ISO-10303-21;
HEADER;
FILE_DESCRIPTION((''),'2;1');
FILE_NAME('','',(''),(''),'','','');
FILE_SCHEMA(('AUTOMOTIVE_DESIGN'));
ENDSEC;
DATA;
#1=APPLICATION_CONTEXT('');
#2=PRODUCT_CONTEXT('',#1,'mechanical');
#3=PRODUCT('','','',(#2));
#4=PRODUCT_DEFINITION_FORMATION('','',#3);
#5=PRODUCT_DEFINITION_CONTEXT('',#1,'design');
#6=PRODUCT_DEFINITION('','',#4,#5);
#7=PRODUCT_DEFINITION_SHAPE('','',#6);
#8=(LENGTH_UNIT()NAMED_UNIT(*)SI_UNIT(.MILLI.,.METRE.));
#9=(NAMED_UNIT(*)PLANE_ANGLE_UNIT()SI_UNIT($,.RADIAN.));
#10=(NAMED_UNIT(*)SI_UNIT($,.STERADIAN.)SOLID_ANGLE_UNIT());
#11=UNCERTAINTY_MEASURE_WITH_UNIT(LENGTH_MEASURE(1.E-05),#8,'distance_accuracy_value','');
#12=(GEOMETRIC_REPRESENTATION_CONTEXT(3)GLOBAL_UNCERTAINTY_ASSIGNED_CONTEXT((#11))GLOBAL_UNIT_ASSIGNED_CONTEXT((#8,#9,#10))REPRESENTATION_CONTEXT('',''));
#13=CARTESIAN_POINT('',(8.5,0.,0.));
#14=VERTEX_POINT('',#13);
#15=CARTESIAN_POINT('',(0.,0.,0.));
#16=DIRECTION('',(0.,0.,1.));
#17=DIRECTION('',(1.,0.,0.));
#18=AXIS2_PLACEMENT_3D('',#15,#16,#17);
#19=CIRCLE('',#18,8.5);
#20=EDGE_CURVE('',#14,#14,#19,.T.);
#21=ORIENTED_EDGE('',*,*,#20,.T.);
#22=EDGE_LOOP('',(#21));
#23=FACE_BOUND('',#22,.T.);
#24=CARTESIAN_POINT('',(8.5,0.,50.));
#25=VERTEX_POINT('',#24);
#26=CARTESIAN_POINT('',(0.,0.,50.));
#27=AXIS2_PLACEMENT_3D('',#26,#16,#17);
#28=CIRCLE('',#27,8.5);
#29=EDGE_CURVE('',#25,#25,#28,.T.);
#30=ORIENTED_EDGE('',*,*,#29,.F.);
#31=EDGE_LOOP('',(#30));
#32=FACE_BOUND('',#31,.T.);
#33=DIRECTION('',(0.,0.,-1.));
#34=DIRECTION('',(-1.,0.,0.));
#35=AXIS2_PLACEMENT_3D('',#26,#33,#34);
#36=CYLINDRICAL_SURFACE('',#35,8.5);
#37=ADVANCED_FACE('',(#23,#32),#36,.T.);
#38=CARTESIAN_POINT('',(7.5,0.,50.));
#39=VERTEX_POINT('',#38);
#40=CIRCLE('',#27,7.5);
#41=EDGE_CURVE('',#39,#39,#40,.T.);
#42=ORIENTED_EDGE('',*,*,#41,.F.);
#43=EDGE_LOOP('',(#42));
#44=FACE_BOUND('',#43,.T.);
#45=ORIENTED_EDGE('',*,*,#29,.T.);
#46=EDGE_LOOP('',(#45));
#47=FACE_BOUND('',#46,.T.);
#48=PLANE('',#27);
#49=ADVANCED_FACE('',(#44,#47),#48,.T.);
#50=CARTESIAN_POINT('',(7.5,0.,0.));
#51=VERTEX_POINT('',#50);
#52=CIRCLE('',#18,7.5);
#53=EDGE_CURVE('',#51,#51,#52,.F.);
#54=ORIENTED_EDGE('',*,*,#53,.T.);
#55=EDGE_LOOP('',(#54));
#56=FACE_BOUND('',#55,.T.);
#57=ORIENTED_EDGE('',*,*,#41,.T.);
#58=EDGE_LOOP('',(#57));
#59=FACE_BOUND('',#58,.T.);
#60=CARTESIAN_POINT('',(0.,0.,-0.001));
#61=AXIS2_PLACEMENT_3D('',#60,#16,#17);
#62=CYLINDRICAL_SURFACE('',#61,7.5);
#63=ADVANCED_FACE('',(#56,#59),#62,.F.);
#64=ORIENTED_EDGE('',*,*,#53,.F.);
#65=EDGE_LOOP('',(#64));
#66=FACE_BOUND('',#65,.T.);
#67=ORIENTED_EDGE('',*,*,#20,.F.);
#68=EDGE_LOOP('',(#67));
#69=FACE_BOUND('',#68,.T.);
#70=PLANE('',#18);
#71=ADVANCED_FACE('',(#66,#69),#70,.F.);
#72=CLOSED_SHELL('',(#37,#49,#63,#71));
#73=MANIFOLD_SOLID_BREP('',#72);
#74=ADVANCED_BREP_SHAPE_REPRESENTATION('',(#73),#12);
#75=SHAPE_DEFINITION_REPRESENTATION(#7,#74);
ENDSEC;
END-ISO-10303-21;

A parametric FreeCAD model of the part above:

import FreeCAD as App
import Part
import Sketcher
from FreeCAD import Vector

doc = App.newDocument("Part")
params = doc.addObject("Spreadsheet::Sheet", "Params")
for row, (alias, value) in enumerate([
    ("sketch1_diameter", "17 mm"),
    ("pad1_length", "50 mm"),
    ("sketch2_diameter", "15 mm"),
], start=1):
    params.set(f"A{row}", alias)
    params.set(f"B{row}", "=" + value)
    params.setAlias(f"B{row}", alias)

body = doc.addObject("PartDesign::Body", "Body")

sketch1 = body.newObject("Sketcher::SketchObject", "Sketch")
sketch1.AttachmentSupport = (doc.getObject("XY_Plane"), [""])
sketch1.MapMode = "FlatFace"
sketch1.addGeometry(Part.Circle(Vector(0, 0, 0), Vector(0, 0, 1), 8), False)
sketch1.addConstraint(Sketcher.Constraint("Coincident", 0, 3, -1, 1))
sketch1.addConstraint(Sketcher.Constraint("Diameter", 0, 17.0))
sketch1.setExpression("Constraints[1]", "Params.sketch1_diameter")
pad1 = body.newObject("PartDesign::Pad", "Pad")
pad1.Profile = sketch1
pad1.setExpression("Length", "Params.pad1_length")

sketch2 = body.newObject("Sketcher::SketchObject", "Sketch001")
sketch2.AttachmentSupport = (doc.getObject("XY_Plane"), [""])
sketch2.MapMode = "FlatFace"
sketch2.AttachmentOffset = App.Placement(Vector(0, 0, 50), App.Rotation())
sketch2.addGeometry(Part.Circle(Vector(0, 0, 0), Vector(0, 0, 1), 8), False)
sketch2.addConstraint(Sketcher.Constraint("Coincident", 0, 3, -1, 1))
sketch2.addConstraint(Sketcher.Constraint("Diameter", 0, 15.0))
sketch2.setExpression("Constraints[1]", "Params.sketch2_diameter")
pocket1 = body.newObject("PartDesign::Pocket", "Pocket")
pocket1.Profile = sketch2
pocket1.Type = "UpToFirst"

doc.recompute()
